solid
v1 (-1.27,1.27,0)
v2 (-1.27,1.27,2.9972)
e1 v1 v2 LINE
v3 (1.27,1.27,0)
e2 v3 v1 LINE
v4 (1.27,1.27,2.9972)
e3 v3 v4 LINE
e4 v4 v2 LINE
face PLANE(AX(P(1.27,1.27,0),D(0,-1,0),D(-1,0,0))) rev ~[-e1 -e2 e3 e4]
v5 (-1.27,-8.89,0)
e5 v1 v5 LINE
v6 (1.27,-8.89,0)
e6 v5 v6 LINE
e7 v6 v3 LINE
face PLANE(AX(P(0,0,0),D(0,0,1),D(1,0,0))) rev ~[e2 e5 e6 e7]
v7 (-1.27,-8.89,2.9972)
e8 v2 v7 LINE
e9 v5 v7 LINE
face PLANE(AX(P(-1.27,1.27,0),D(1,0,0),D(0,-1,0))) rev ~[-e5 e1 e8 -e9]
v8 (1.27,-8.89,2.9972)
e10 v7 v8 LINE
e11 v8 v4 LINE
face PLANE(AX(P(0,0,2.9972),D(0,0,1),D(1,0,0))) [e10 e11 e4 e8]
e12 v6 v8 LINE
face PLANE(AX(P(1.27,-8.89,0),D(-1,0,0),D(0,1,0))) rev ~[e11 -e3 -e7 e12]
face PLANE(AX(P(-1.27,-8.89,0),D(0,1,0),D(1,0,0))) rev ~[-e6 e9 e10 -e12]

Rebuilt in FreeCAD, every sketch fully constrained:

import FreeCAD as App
import Part
import Sketcher

V = App.Vector
Q = App.Units.Quantity


def add_polygon(sketch, points):
    """Adds a closed chain of lines whose ends are joined by coincident constraints."""
    first, n = sketch.GeometryCount, len(points)
    for a, b in zip(points, points[1:] + points[:1]):
        sketch.addGeometry(Part.LineSegment(App.Vector(*a, 0), App.Vector(*b, 0)), False)
    for i in range(n):
        sketch.addConstraint(Sketcher.Constraint("Coincident", first + i, 2, first + (i + 1) % n, 1))

doc = App.newDocument("Part")
body = doc.addObject("PartDesign::Body", "Body")

# Sketch on XY plane
sketch1 = body.newObject("Sketcher::SketchObject", "Sketch")
sketch1.AttachmentSupport = (doc.getObject("XY_Plane"), [""])
sketch1.MapMode = "FlatFace"
add_polygon(sketch1, [(1.3, 1.3), (-1.3, 1.3), (-1.3, -8.9), (1.3, -8.9)])  # lines 0-3
sketch1.addConstraint([
    Sketcher.Constraint("Horizontal", 0),
    Sketcher.Constraint("Vertical", 1),
    Sketcher.Constraint("Horizontal", 2),
    Sketcher.Constraint("Vertical", 3),
    Sketcher.Constraint("DistanceX", 0, 2, 0, 1, Q("0.1 in")),
    Sketcher.Constraint("DistanceY", 1, 2, 1, 1, Q("0.4 in")),
    Sketcher.Constraint("DistanceX", 0, 2, -1, 1, Q("0.05 in")),
    Sketcher.Constraint("DistanceY", -1, 1, 0, 2, Q("0.05 in")),
])
pad1 = body.newObject("PartDesign::Pad", "Pad")
pad1.Profile = sketch1
pad1.Length = Q("0.118 in")

doc.recompute()
